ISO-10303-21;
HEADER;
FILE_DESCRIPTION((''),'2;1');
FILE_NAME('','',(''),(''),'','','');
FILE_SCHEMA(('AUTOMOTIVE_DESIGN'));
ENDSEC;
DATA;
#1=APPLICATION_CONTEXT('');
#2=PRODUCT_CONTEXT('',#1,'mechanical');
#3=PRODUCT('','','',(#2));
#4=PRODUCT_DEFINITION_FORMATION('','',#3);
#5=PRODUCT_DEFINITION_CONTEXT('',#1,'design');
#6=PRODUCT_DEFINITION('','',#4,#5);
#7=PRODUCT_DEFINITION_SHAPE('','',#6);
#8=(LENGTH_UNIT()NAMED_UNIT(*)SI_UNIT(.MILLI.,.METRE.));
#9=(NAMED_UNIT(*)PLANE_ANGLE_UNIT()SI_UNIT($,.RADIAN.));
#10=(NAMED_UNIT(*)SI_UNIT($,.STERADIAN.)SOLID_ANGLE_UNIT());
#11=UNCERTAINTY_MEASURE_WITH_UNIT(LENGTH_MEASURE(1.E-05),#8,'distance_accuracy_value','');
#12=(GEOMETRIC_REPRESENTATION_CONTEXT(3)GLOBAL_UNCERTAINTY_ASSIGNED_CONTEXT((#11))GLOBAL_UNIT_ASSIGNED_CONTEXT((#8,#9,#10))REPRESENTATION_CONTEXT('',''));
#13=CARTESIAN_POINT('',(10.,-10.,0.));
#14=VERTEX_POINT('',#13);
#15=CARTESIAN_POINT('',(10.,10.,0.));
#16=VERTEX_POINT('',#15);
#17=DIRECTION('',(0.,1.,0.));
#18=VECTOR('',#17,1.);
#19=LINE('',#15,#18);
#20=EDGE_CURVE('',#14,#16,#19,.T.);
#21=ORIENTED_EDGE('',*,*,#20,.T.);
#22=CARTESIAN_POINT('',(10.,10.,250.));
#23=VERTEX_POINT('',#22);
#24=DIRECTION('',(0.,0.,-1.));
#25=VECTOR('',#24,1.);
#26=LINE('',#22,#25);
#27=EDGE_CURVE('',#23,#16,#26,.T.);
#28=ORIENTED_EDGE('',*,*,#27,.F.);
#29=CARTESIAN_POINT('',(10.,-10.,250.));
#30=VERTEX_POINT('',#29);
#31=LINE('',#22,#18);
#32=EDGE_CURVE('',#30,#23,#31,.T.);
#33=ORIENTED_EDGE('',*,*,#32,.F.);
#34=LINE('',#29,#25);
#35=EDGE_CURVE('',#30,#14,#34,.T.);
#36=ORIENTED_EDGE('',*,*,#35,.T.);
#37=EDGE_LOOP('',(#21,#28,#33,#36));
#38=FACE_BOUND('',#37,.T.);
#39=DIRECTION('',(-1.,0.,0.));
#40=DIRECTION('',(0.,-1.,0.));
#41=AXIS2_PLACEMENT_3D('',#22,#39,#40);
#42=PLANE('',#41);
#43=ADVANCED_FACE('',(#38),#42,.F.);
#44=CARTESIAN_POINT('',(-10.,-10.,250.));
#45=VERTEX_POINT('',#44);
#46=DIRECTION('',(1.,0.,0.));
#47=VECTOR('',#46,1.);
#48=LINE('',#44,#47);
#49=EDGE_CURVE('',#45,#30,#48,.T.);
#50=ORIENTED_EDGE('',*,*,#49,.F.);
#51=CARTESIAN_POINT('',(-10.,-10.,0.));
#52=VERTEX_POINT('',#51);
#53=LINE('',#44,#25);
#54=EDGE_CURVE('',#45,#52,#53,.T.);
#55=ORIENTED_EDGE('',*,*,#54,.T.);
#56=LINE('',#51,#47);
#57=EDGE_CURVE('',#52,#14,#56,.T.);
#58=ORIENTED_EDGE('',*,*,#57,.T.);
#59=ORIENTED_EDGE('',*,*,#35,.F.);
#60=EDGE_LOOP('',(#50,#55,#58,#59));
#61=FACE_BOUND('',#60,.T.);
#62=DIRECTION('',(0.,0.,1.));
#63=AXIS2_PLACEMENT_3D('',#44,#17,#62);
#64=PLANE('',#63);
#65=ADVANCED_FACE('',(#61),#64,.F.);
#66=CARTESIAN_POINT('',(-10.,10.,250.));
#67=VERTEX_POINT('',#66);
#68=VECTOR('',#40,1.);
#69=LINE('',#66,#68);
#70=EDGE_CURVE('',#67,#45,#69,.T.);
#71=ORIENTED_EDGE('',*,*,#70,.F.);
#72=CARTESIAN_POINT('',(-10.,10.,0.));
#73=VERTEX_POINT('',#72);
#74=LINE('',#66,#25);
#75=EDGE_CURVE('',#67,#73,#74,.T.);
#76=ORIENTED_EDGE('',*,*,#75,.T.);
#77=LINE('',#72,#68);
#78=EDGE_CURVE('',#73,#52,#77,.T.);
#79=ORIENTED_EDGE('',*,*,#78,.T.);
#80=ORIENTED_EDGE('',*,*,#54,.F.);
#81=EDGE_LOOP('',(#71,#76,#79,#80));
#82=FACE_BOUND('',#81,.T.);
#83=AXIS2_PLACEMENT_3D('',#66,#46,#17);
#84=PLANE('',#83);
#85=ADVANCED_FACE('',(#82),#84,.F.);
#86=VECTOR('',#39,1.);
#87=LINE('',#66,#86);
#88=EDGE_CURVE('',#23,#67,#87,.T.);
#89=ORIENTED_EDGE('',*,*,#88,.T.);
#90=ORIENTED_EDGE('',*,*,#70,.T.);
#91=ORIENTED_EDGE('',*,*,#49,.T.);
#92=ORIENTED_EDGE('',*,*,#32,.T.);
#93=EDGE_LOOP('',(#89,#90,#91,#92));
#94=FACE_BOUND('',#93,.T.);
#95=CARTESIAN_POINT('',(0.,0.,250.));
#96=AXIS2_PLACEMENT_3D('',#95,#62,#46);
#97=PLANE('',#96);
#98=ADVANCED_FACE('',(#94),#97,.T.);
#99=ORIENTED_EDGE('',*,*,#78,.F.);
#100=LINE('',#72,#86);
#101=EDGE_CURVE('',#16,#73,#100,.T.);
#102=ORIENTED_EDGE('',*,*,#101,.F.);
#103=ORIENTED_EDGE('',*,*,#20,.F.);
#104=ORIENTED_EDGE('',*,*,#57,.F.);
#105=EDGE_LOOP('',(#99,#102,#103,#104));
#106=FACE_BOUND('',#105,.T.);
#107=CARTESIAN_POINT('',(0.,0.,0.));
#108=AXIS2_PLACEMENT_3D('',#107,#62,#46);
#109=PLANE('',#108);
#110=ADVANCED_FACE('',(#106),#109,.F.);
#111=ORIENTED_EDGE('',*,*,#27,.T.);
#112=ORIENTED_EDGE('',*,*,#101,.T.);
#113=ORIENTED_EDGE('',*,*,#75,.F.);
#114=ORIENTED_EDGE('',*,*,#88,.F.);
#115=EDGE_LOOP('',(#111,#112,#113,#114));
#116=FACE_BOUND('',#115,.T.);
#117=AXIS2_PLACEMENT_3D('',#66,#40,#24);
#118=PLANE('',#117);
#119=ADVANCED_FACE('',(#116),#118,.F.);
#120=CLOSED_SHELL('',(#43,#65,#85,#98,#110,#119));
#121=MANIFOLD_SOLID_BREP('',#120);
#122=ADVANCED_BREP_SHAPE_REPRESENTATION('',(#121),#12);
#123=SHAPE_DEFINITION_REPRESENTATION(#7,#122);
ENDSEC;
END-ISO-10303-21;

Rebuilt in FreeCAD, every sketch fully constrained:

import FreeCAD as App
import Part
import Sketcher

doc = App.newDocument("Part")
body = doc.addObject("PartDesign::Body", "Body")

# Sketch on XY plane
sketch1 = body.newObject("Sketcher::SketchObject", "Sketch")
sketch1.AttachmentSupport = (doc.getObject("XY_Plane"), [""])
sketch1.MapMode = "FlatFace"
sketch1.addGeometry([
    Part.LineSegment(App.Vector(-10, 10, 0), App.Vector(-10, -10, 0)),
    Part.LineSegment(App.Vector(-10, -10, 0), App.Vector(10, -10, 0)),
    Part.LineSegment(App.Vector(10, -10, 0), App.Vector(10, 10, 0)),
    Part.LineSegment(App.Vector(10, 10, 0), App.Vector(-10, 10, 0)),
], False)
sketch1.addConstraint([
    Sketcher.Constraint("Coincident", 0, 2, 1, 1),
    Sketcher.Constraint("Coincident", 1, 2, 2, 1),
    Sketcher.Constraint("Coincident", 2, 2, 3, 1),
    Sketcher.Constraint("Coincident", 3, 2, 0, 1),
    Sketcher.Constraint("Vertical", 0),
    Sketcher.Constraint("Horizontal", 1),
    Sketcher.Constraint("Vertical", 2),
    Sketcher.Constraint("Horizontal", 3),
    Sketcher.Constraint("Symmetric", 0, 2, 2, 2, -1, 1),
    Sketcher.Constraint("Equal", 3, 0),
    Sketcher.Constraint("DistanceX", 1, 1, 1, 2, 20.0),
])
pad1 = body.newObject("PartDesign::Pad", "Pad")
pad1.Profile = sketch1
pad1.Length = 250

doc.recompute()
